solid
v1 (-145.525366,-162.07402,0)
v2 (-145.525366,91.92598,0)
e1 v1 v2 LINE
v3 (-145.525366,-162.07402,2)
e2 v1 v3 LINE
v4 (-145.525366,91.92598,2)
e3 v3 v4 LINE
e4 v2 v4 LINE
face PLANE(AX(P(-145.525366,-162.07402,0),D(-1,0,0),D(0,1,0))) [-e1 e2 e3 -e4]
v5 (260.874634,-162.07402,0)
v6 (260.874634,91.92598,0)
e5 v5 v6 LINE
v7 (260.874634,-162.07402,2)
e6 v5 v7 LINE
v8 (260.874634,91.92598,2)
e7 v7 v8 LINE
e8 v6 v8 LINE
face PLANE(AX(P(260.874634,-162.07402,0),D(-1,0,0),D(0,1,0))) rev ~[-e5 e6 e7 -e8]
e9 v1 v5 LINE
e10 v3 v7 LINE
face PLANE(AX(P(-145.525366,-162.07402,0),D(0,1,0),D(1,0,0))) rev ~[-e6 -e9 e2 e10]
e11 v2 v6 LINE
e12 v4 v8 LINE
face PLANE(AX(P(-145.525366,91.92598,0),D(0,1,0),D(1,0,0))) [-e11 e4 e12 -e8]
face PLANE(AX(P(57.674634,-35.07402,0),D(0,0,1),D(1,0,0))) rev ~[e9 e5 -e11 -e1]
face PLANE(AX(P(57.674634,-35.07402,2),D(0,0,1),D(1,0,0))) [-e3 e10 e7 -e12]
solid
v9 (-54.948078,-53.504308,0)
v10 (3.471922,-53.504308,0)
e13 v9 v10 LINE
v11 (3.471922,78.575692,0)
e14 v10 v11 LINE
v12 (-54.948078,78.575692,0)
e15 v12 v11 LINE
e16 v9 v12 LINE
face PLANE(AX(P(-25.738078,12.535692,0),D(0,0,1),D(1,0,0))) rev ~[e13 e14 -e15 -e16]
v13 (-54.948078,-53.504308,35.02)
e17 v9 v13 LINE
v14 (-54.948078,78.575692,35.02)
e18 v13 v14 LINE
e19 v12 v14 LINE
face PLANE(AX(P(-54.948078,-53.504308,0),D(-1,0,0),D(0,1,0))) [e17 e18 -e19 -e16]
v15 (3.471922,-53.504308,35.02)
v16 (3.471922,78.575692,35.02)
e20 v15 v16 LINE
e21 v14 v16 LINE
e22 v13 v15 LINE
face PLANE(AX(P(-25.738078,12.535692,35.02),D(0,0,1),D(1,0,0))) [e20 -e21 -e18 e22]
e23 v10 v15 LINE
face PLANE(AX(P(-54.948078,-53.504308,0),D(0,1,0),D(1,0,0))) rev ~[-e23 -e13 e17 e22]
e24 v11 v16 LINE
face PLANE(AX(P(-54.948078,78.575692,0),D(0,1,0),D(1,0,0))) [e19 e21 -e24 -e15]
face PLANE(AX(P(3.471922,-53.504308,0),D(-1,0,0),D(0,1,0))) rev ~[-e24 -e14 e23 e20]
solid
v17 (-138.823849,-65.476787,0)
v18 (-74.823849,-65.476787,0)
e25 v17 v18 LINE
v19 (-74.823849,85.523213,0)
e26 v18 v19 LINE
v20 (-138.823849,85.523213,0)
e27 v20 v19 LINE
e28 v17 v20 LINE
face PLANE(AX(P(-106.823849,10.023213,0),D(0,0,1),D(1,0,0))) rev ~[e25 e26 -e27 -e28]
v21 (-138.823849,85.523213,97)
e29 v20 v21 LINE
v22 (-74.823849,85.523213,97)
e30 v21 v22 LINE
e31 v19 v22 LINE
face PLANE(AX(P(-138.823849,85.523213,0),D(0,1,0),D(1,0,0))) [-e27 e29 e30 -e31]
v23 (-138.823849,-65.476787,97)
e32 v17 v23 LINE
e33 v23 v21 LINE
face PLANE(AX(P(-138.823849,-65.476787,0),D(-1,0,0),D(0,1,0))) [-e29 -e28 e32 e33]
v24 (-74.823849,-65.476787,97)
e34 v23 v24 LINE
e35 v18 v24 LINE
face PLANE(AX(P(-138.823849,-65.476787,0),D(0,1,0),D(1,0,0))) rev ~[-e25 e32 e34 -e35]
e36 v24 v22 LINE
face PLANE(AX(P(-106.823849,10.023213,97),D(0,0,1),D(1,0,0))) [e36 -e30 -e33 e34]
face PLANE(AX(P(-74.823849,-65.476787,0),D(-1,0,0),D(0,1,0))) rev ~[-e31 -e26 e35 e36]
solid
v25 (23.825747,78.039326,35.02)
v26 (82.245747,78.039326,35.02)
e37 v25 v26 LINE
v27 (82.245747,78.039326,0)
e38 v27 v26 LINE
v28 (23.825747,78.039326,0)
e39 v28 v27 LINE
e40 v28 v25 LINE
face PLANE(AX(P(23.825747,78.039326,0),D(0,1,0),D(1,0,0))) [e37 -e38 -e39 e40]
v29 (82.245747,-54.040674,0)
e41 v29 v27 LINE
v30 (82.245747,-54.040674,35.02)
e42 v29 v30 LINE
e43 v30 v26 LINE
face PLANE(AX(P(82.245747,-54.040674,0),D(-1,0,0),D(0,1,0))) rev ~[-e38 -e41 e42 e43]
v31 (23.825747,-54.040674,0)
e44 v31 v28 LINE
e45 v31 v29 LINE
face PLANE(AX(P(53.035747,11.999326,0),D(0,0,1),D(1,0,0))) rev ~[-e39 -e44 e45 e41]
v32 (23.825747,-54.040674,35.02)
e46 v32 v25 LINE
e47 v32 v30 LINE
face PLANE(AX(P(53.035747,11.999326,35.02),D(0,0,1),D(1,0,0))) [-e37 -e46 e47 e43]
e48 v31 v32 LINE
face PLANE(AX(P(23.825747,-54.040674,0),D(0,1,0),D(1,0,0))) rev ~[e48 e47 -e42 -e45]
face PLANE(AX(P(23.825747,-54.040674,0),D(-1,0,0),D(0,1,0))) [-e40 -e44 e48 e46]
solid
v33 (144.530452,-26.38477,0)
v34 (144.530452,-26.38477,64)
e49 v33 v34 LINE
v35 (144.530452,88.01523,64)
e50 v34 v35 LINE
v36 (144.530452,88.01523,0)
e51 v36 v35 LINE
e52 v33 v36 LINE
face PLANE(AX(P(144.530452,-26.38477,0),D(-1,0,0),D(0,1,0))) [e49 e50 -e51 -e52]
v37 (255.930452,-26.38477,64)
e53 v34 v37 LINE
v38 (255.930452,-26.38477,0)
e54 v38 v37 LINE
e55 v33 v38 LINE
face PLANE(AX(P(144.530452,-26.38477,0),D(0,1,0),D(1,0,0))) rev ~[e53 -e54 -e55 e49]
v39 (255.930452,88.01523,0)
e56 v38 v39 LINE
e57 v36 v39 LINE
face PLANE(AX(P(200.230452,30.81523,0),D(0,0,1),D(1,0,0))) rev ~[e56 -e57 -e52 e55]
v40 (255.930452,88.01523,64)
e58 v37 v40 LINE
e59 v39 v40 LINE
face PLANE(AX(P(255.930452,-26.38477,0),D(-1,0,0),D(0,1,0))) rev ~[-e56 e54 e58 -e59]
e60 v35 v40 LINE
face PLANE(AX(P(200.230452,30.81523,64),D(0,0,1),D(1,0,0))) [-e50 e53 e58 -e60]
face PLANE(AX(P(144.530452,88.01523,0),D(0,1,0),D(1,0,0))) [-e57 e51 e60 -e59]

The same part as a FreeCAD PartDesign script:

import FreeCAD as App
import Part
import Sketcher
from FreeCAD import Vector

doc = App.newDocument("Part")
body = doc.addObject("PartDesign::Body", "Body")

sketch1 = body.newObject("Sketcher::SketchObject", "Sketch")
sketch1.AttachmentSupport = (doc.getObject("XY_Plane"), [""])
sketch1.MapMode = "FlatFace"
sketch1.addGeometry([
    Part.LineSegment(Vector(-145.525366, 91.92598, 0), Vector(-145.525366, -162.07402, 0)),
    Part.LineSegment(Vector(-145.525366, -162.07402, 0), Vector(260.874634, -162.07402, 0)),
    Part.LineSegment(Vector(260.874634, -162.07402, 0), Vector(260.874634, 91.92598, 0)),
    Part.LineSegment(Vector(260.874634, 91.92598, 0), Vector(-145.525366, 91.92598, 0)),
], False)
sketch1.addConstraint([
    Sketcher.Constraint("Coincident", 0, 2, 1, 1),
    Sketcher.Constraint("Coincident", 1, 2, 2, 1),
    Sketcher.Constraint("Coincident", 2, 2, 3, 1),
    Sketcher.Constraint("Coincident", 3, 2, 0, 1),
    Sketcher.Constraint("Vertical", 0),
    Sketcher.Constraint("Horizontal", 1),
    Sketcher.Constraint("Vertical", 2),
    Sketcher.Constraint("Horizontal", 3),
    Sketcher.Constraint("DistanceY", 0, 2, 0, 1, 254.0),
    Sketcher.Constraint("DistanceX", 1, 1, 1, 2, 406.4),
    Sketcher.Constraint("DistanceY", 0, 2, -1, 1, 162.07402),
    Sketcher.Constraint("DistanceX", 0, 2, -1, 1, 145.525366),
])
pad1 = body.newObject("PartDesign::Pad", "Pad")
pad1.Profile = sketch1
pad1.Length = 2
body2 = doc.addObject("PartDesign::Body", "Body001")

sketch2 = body2.newObject("Sketcher::SketchObject", "Sketch001")
sketch2.AttachmentSupport = (doc.getObject("XY_Plane001"), [""])
sketch2.MapMode = "FlatFace"
sketch2.addGeometry([
    Part.LineSegment(Vector(144.530452, 88.01523, 0), Vector(144.530452, -26.38477, 0)),
    Part.LineSegment(Vector(144.530452, -26.38477, 0), Vector(255.930452, -26.38477, 0)),
    Part.LineSegment(Vector(255.930452, -26.38477, 0), Vector(255.930452, 88.01523, 0)),
    Part.LineSegment(Vector(255.930452, 88.01523, 0), Vector(144.530452, 88.01523, 0)),
], False)
sketch2.addConstraint([
    Sketcher.Constraint("Coincident", 0, 2, 1, 1),
    Sketcher.Constraint("Coincident", 1, 2, 2, 1),
    Sketcher.Constraint("Coincident", 2, 2, 3, 1),
    Sketcher.Constraint("Coincident", 3, 2, 0, 1),
    Sketcher.Constraint("Vertical", 0),
    Sketcher.Constraint("Horizontal", 1),
    Sketcher.Constraint("Vertical", 2),
    Sketcher.Constraint("Horizontal", 3),
    Sketcher.Constraint("DistanceX", 1, 1, 1, 2, 111.4),
    Sketcher.Constraint("DistanceY", 0, 2, 0, 1, 114.4),
    Sketcher.Constraint("DistanceX", -1, 1, 0, 2, 144.530452),
    Sketcher.Constraint("DistanceY", 0, 2, -1, 1, 26.38477),
])
pad2 = body2.newObject("PartDesign::Pad", "Pad001")
pad2.Profile = sketch2
pad2.Length = 64
body3 = doc.addObject("PartDesign::Body", "Body002")

sketch3 = body3.newObject("Sketcher::SketchObject", "Sketch002")
sketch3.AttachmentSupport = (doc.getObject("XY_Plane002"), [""])
sketch3.MapMode = "FlatFace"
sketch3.addGeometry([
    Part.LineSegment(Vector(-138.823849, 85.523213, 0), Vector(-138.823849, -65.476787, 0)),
    Part.LineSegment(Vector(-138.823849, -65.476787, 0), Vector(-74.823849, -65.476787, 0)),
    Part.LineSegment(Vector(-74.823849, -65.476787, 0), Vector(-74.823849, 85.523213, 0)),
    Part.LineSegment(Vector(-74.823849, 85.523213, 0), Vector(-138.823849, 85.523213, 0)),
], False)
sketch3.addConstraint([
    Sketcher.Constraint("Coincident", 0, 2, 1, 1),
    Sketcher.Constraint("Coincident", 1, 2, 2, 1),
    Sketcher.Constraint("Coincident", 2, 2, 3, 1),
    Sketcher.Constraint("Coincident", 3, 2, 0, 1),
    Sketcher.Constraint("Vertical", 0),
    Sketcher.Constraint("Horizontal", 1),
    Sketcher.Constraint("Vertical", 2),
    Sketcher.Constraint("Horizontal", 3),
    Sketcher.Constraint("DistanceX", 1, 1, 1, 2, 64.0),
    Sketcher.Constraint("DistanceY", 0, 2, 0, 1, 151.0),
    Sketcher.Constraint("DistanceX", 0, 2, -1, 1, 138.823849),
    Sketcher.Constraint("DistanceY", 0, 2, -1, 1, 65.476787),
])
pad3 = body3.newObject("PartDesign::Pad", "Pad002")
pad3.Profile = sketch3
pad3.Length = 97
body4 = doc.addObject("PartDesign::Body", "Body003")

sketch4 = body4.newObject("Sketcher::SketchObject", "Sketch003")
sketch4.AttachmentSupport = (doc.getObject("XY_Plane003"), [""])
sketch4.MapMode = "FlatFace"
sketch4.addGeometry([
    Part.LineSegment(Vector(-54.948078, 78.575692, 0), Vector(-54.948078, -53.504308, 0)),
    Part.LineSegment(Vector(-54.948078, -53.504308, 0), Vector(3.471922, -53.504308, 0)),
    Part.LineSegment(Vector(3.471922, -53.504308, 0), Vector(3.471922, 78.575692, 0)),
    Part.LineSegment(Vector(3.471922, 78.575692, 0), Vector(-54.948078, 78.575692, 0)),
], False)
sketch4.addConstraint([
    Sketcher.Constraint("Coincident", 0, 2, 1, 1),
    Sketcher.Constraint("Coincident", 1, 2, 2, 1),
    Sketcher.Constraint("Coincident", 2, 2, 3, 1),
    Sketcher.Constraint("Coincident", 3, 2, 0, 1),
    Sketcher.Constraint("Vertical", 0),
    Sketcher.Constraint("Horizontal", 1),
    Sketcher.Constraint("Vertical", 2),
    Sketcher.Constraint("Horizontal", 3),
    Sketcher.Constraint("DistanceX", 1, 1, 1, 2, 58.42),
    Sketcher.Constraint("DistanceY", 0, 2, 0, 1, 132.08),
    Sketcher.Constraint("DistanceX", 0, 2, -1, 1, 54.948078),
    Sketcher.Constraint("DistanceY", 0, 2, -1, 1, 53.504308),
])
pad4 = body4.newObject("PartDesign::Pad", "Pad003")
pad4.Profile = sketch4
pad4.Length = 35.02
body5 = doc.addObject("PartDesign::Body", "Body004")

sketch5 = body5.newObject("Sketcher::SketchObject", "Sketch004")
sketch5.AttachmentSupport = (doc.getObject("XY_Plane004"), [""])
sketch5.MapMode = "FlatFace"
sketch5.addGeometry([
    Part.LineSegment(Vector(23.825747, 78.039326, 0), Vector(23.825747, -54.040674, 0)),
    Part.LineSegment(Vector(23.825747, -54.040674, 0), Vector(82.245747, -54.040674, 0)),
    Part.LineSegment(Vector(82.245747, -54.040674, 0), Vector(82.245747, 78.039326, 0)),
    Part.LineSegment(Vector(82.245747, 78.039326, 0), Vector(23.825747, 78.039326, 0)),
], False)
sketch5.addConstraint([
    Sketcher.Constraint("Coincident", 0, 2, 1, 1),
    Sketcher.Constraint("Coincident", 1, 2, 2, 1),
    Sketcher.Constraint("Coincident", 2, 2, 3, 1),
    Sketcher.Constraint("Coincident", 3, 2, 0, 1),
    Sketcher.Constraint("Vertical", 0),
    Sketcher.Constraint("Horizontal", 1),
    Sketcher.Constraint("Vertical", 2),
    Sketcher.Constraint("Horizontal", 3),
    Sketcher.Constraint("DistanceX", 1, 1, 1, 2, 58.42),
    Sketcher.Constraint("DistanceY", 0, 2, 0, 1, 132.08),
    Sketcher.Constraint("DistanceX", -1, 1, 0, 2, 23.825747),
    Sketcher.Constraint("DistanceY", 0, 2, -1, 1, 54.040674),
])
pad5 = body5.newObject("PartDesign::Pad", "Pad004")
pad5.Profile = sketch5
pad5.Length = 35.02

doc.recompute()
